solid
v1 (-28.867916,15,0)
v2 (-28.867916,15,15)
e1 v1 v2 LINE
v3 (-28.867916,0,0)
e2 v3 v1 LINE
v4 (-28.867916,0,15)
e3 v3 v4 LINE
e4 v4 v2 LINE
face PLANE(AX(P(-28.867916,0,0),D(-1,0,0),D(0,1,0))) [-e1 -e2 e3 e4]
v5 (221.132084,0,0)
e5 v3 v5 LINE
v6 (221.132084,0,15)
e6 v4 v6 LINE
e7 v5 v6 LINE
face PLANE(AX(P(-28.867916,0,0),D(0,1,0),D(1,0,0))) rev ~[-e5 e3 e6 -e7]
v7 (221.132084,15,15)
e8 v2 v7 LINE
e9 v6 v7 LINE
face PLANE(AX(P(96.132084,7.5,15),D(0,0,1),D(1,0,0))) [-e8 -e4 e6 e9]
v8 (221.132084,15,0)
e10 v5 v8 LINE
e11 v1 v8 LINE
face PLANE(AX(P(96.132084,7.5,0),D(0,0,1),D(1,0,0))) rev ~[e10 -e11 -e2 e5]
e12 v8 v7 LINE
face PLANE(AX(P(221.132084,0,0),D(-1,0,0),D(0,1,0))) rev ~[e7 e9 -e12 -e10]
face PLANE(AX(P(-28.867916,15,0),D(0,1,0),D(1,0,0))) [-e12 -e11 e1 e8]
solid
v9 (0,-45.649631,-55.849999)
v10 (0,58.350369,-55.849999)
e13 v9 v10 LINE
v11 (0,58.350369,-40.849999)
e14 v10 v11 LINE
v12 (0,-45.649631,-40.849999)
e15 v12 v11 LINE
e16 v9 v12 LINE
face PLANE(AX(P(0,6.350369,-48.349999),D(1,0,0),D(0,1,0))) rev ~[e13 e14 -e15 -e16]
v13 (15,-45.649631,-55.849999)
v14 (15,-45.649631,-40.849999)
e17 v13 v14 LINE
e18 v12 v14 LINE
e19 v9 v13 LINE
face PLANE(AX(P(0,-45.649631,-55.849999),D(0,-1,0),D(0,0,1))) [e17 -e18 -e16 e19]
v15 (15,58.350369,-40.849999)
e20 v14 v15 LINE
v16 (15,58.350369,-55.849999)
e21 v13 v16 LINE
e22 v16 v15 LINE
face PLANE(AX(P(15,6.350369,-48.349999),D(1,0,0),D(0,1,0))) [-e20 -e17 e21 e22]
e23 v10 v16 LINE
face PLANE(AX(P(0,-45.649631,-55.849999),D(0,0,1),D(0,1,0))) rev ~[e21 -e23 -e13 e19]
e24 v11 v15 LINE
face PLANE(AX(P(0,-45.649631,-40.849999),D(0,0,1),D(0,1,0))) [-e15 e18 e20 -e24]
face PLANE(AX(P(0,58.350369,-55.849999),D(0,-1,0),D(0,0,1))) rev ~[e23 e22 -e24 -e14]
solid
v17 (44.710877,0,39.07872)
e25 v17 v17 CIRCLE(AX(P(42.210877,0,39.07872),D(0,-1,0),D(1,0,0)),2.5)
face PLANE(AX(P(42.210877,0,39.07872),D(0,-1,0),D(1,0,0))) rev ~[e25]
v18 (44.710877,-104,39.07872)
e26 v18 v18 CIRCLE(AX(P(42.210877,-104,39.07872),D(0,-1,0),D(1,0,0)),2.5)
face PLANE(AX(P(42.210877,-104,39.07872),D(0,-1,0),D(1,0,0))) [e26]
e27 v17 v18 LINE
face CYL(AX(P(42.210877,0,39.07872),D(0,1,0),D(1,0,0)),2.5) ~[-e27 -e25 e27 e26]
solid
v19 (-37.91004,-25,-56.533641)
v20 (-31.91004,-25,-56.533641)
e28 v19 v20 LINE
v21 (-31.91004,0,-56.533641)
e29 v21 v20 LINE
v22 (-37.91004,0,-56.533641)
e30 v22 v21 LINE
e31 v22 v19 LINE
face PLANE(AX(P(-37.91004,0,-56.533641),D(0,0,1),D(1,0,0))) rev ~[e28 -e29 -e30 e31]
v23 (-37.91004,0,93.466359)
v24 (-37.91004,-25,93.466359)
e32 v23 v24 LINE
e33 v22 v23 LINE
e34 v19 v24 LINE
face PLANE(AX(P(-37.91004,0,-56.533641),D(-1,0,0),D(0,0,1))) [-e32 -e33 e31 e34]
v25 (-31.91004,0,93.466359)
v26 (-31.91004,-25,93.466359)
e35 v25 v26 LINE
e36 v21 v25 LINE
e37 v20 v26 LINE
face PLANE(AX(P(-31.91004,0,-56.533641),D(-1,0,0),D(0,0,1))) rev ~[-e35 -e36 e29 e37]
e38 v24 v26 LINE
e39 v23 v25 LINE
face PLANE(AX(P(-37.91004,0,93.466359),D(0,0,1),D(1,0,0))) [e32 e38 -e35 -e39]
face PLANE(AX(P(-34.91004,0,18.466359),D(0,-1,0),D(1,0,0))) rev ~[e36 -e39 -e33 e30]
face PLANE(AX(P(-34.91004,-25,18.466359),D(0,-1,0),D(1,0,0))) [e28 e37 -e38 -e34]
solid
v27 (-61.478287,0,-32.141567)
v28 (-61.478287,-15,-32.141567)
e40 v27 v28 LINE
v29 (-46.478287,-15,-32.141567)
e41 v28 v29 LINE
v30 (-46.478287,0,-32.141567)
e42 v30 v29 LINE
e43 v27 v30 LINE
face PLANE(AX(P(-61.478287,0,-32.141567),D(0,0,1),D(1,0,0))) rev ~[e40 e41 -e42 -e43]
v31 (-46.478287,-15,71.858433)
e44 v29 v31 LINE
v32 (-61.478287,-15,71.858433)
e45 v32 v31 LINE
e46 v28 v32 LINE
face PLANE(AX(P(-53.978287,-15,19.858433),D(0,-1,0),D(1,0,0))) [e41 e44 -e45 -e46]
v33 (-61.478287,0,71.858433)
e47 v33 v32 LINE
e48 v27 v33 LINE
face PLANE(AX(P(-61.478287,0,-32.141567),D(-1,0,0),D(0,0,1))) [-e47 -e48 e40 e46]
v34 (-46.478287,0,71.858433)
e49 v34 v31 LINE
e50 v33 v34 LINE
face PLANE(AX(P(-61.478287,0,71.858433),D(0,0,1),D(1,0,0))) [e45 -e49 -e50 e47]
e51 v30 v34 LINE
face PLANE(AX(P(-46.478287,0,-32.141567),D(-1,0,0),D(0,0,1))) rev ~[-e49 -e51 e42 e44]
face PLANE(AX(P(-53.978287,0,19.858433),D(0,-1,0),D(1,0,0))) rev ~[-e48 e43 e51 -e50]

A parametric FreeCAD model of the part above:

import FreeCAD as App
import Part
import Sketcher

V = App.Vector


def add_polygon(sketch, points):
    """Adds a closed chain of lines whose ends are joined by coincident constraints."""
    first, n = sketch.GeometryCount, len(points)
    for a, b in zip(points, points[1:] + points[:1]):
        sketch.addGeometry(Part.LineSegment(App.Vector(*a, 0), App.Vector(*b, 0)), False)
    for i in range(n):
        sketch.addConstraint(Sketcher.Constraint("Coincident", first + i, 2, first + (i + 1) % n, 1))

doc = App.newDocument("Part")
params = doc.addObject("Spreadsheet::Sheet", "Params")
for row, (alias, value) in enumerate([
    ("sketch1_width", "250 mm"),
    ("sketch1_height", "15 mm"),
    ("pad1_length", "15 mm"),
    ("sketch2_width", "104 mm"),
    ("sketch2_height", "15 mm"),
    ("pad2_length", "15 mm"),
    ("sketch3_width", "15 mm"),
    ("sketch3_height", "104 mm"),
    ("pad3_length", "15 mm"),
    ("sketch4_diameter", "5 mm"),
    ("pad4_length", "104 mm"),
    ("sketch5_width", "6 mm"),
    ("sketch5_height", "150 mm"),
    ("pad5_length", "25 mm"),
], start=1):
    params.set(f"A{row}", alias)
    params.set(f"B{row}", "=" + value)
    params.setAlias(f"B{row}", alias)

body = doc.addObject("PartDesign::Body", "Body")

# Sketch on XY plane
sketch1 = body.newObject("Sketcher::SketchObject", "Sketch")
sketch1.AttachmentSupport = (doc.getObject("XY_Plane"), [""])
sketch1.MapMode = "FlatFace"
add_polygon(sketch1, [(-29, 15), (-29, 0), (221, 0), (221, 15)])  # lines 0-3
sketch1.addConstraint([
    Sketcher.Constraint("Vertical", 0),
    Sketcher.Constraint("Horizontal", 1),
    Sketcher.Constraint("Vertical", 2),
    Sketcher.Constraint("Horizontal", 3),
    Sketcher.Constraint("PointOnObject", 0, 2, -1),
    Sketcher.Constraint("DistanceX", 1, 1, 1, 2, 250.0),
    Sketcher.Constraint("DistanceY", 0, 2, 0, 1, 15.0),
    Sketcher.Constraint("DistanceX", 0, 2, -1, 1, 28.867916),
])
sketch1.setExpression("Constraints[9]", "Params.sketch1_width")
sketch1.setExpression("Constraints[10]", "Params.sketch1_height")
pad1 = body.newObject("PartDesign::Pad", "Pad")
pad1.Profile = sketch1
pad1.setExpression("Length", "Params.pad1_length")
body2 = doc.addObject("PartDesign::Body", "Body001")

# Sketch on YZ plane
sketch2 = body2.newObject("Sketcher::SketchObject", "Sketch001")
sketch2.AttachmentSupport = (doc.getObject("YZ_Plane001"), [""])
sketch2.MapMode = "FlatFace"
add_polygon(sketch2, [(-46, -41), (-46, -56), (58, -56), (58, -41)])  # lines 0-3
sketch2.addConstraint([
    Sketcher.Constraint("Vertical", 0),
    Sketcher.Constraint("Horizontal", 1),
    Sketcher.Constraint("Vertical", 2),
    Sketcher.Constraint("Horizontal", 3),
    Sketcher.Constraint("DistanceX", 1, 1, 1, 2, 104.0),
    Sketcher.Constraint("DistanceY", 0, 2, 0, 1, 15.0),
    Sketcher.Constraint("DistanceY", 0, 2, -1, 1, 55.849999),
    Sketcher.Constraint("DistanceX", 0, 2, -1, 1, 45.649631),
])
sketch2.setExpression("Constraints[8]", "Params.sketch2_width")
sketch2.setExpression("Constraints[9]", "Params.sketch2_height")
pad2 = body2.newObject("PartDesign::Pad", "Pad001")
pad2.Profile = sketch2
pad2.setExpression("Length", "Params.pad2_length")
body3 = doc.addObject("PartDesign::Body", "Body002")

# Sketch on XZ plane
sketch3 = body3.newObject("Sketcher::SketchObject", "Sketch002")
sketch3.AttachmentSupport = (doc.getObject("XZ_Plane002"), [""])
sketch3.MapMode = "FlatFace"
add_polygon(sketch3, [(-61, 72), (-61, -32), (-46, -32), (-46, 72)])  # lines 0-3
sketch3.addConstraint([
    Sketcher.Constraint("Vertical", 0),
    Sketcher.Constraint("Horizontal", 1),
    Sketcher.Constraint("Vertical", 2),
    Sketcher.Constraint("Horizontal", 3),
    Sketcher.Constraint("DistanceX", 1, 1, 1, 2, 15.0),
    Sketcher.Constraint("DistanceY", 0, 2, 0, 1, 104.0),
    Sketcher.Constraint("DistanceX", 0, 2, -1, 1, 61.478287),
    Sketcher.Constraint("DistanceY", 0, 2, -1, 1, 32.141567),
])
sketch3.setExpression("Constraints[8]", "Params.sketch3_width")
sketch3.setExpression("Constraints[9]", "Params.sketch3_height")
pad3 = body3.newObject("PartDesign::Pad", "Pad002")
pad3.Profile = sketch3
pad3.setExpression("Length", "Params.pad3_length")
body4 = doc.addObject("PartDesign::Body", "Body003")

# Sketch on XZ plane
sketch4 = body4.newObject("Sketcher::SketchObject", "Sketch003")
sketch4.AttachmentSupport = (doc.getObject("XZ_Plane003"), [""])
sketch4.MapMode = "FlatFace"
sketch4.addGeometry(Part.Circle(V(42.2, 39.1, 0), V(0, 0, 1), 2.5), False)
sketch4.addConstraint([
    Sketcher.Constraint("Diameter", 0, 5.0),
    Sketcher.Constraint("DistanceY", -1, 1, 0, 3, 39.07872),
    Sketcher.Constraint("DistanceX", -1, 1, 0, 3, 42.210877),
])
sketch4.setExpression("Constraints[0]", "Params.sketch4_diameter")
pad4 = body4.newObject("PartDesign::Pad", "Pad003")
pad4.Profile = sketch4
pad4.setExpression("Length", "Params.pad4_length")
body5 = doc.addObject("PartDesign::Body", "Body004")

# Sketch on XZ plane
sketch5 = body5.newObject("Sketcher::SketchObject", "Sketch004")
sketch5.AttachmentSupport = (doc.getObject("XZ_Plane004"), [""])
sketch5.MapMode = "FlatFace"
add_polygon(sketch5, [(-38, 93), (-38, -57), (-32, -57), (-32, 93)])  # lines 0-3
sketch5.addConstraint([
    Sketcher.Constraint("Vertical", 0),
    Sketcher.Constraint("Horizontal", 1),
    Sketcher.Constraint("Vertical", 2),
    Sketcher.Constraint("Horizontal", 3),
    Sketcher.Constraint("DistanceX", 1, 1, 1, 2, 6.0),
    Sketcher.Constraint("DistanceY", 0, 2, 0, 1, 150.0),
    Sketcher.Constraint("DistanceX", 0, 2, -1, 1, 37.91004),
    Sketcher.Constraint("DistanceY", 0, 2, -1, 1, 56.533641),
])
sketch5.setExpression("Constraints[8]", "Params.sketch5_width")
sketch5.setExpression("Constraints[9]", "Params.sketch5_height")
pad5 = body5.newObject("PartDesign::Pad", "Pad004")
pad5.Profile = sketch5
pad5.setExpression("Length", "Params.pad5_length")

doc.recompute()
